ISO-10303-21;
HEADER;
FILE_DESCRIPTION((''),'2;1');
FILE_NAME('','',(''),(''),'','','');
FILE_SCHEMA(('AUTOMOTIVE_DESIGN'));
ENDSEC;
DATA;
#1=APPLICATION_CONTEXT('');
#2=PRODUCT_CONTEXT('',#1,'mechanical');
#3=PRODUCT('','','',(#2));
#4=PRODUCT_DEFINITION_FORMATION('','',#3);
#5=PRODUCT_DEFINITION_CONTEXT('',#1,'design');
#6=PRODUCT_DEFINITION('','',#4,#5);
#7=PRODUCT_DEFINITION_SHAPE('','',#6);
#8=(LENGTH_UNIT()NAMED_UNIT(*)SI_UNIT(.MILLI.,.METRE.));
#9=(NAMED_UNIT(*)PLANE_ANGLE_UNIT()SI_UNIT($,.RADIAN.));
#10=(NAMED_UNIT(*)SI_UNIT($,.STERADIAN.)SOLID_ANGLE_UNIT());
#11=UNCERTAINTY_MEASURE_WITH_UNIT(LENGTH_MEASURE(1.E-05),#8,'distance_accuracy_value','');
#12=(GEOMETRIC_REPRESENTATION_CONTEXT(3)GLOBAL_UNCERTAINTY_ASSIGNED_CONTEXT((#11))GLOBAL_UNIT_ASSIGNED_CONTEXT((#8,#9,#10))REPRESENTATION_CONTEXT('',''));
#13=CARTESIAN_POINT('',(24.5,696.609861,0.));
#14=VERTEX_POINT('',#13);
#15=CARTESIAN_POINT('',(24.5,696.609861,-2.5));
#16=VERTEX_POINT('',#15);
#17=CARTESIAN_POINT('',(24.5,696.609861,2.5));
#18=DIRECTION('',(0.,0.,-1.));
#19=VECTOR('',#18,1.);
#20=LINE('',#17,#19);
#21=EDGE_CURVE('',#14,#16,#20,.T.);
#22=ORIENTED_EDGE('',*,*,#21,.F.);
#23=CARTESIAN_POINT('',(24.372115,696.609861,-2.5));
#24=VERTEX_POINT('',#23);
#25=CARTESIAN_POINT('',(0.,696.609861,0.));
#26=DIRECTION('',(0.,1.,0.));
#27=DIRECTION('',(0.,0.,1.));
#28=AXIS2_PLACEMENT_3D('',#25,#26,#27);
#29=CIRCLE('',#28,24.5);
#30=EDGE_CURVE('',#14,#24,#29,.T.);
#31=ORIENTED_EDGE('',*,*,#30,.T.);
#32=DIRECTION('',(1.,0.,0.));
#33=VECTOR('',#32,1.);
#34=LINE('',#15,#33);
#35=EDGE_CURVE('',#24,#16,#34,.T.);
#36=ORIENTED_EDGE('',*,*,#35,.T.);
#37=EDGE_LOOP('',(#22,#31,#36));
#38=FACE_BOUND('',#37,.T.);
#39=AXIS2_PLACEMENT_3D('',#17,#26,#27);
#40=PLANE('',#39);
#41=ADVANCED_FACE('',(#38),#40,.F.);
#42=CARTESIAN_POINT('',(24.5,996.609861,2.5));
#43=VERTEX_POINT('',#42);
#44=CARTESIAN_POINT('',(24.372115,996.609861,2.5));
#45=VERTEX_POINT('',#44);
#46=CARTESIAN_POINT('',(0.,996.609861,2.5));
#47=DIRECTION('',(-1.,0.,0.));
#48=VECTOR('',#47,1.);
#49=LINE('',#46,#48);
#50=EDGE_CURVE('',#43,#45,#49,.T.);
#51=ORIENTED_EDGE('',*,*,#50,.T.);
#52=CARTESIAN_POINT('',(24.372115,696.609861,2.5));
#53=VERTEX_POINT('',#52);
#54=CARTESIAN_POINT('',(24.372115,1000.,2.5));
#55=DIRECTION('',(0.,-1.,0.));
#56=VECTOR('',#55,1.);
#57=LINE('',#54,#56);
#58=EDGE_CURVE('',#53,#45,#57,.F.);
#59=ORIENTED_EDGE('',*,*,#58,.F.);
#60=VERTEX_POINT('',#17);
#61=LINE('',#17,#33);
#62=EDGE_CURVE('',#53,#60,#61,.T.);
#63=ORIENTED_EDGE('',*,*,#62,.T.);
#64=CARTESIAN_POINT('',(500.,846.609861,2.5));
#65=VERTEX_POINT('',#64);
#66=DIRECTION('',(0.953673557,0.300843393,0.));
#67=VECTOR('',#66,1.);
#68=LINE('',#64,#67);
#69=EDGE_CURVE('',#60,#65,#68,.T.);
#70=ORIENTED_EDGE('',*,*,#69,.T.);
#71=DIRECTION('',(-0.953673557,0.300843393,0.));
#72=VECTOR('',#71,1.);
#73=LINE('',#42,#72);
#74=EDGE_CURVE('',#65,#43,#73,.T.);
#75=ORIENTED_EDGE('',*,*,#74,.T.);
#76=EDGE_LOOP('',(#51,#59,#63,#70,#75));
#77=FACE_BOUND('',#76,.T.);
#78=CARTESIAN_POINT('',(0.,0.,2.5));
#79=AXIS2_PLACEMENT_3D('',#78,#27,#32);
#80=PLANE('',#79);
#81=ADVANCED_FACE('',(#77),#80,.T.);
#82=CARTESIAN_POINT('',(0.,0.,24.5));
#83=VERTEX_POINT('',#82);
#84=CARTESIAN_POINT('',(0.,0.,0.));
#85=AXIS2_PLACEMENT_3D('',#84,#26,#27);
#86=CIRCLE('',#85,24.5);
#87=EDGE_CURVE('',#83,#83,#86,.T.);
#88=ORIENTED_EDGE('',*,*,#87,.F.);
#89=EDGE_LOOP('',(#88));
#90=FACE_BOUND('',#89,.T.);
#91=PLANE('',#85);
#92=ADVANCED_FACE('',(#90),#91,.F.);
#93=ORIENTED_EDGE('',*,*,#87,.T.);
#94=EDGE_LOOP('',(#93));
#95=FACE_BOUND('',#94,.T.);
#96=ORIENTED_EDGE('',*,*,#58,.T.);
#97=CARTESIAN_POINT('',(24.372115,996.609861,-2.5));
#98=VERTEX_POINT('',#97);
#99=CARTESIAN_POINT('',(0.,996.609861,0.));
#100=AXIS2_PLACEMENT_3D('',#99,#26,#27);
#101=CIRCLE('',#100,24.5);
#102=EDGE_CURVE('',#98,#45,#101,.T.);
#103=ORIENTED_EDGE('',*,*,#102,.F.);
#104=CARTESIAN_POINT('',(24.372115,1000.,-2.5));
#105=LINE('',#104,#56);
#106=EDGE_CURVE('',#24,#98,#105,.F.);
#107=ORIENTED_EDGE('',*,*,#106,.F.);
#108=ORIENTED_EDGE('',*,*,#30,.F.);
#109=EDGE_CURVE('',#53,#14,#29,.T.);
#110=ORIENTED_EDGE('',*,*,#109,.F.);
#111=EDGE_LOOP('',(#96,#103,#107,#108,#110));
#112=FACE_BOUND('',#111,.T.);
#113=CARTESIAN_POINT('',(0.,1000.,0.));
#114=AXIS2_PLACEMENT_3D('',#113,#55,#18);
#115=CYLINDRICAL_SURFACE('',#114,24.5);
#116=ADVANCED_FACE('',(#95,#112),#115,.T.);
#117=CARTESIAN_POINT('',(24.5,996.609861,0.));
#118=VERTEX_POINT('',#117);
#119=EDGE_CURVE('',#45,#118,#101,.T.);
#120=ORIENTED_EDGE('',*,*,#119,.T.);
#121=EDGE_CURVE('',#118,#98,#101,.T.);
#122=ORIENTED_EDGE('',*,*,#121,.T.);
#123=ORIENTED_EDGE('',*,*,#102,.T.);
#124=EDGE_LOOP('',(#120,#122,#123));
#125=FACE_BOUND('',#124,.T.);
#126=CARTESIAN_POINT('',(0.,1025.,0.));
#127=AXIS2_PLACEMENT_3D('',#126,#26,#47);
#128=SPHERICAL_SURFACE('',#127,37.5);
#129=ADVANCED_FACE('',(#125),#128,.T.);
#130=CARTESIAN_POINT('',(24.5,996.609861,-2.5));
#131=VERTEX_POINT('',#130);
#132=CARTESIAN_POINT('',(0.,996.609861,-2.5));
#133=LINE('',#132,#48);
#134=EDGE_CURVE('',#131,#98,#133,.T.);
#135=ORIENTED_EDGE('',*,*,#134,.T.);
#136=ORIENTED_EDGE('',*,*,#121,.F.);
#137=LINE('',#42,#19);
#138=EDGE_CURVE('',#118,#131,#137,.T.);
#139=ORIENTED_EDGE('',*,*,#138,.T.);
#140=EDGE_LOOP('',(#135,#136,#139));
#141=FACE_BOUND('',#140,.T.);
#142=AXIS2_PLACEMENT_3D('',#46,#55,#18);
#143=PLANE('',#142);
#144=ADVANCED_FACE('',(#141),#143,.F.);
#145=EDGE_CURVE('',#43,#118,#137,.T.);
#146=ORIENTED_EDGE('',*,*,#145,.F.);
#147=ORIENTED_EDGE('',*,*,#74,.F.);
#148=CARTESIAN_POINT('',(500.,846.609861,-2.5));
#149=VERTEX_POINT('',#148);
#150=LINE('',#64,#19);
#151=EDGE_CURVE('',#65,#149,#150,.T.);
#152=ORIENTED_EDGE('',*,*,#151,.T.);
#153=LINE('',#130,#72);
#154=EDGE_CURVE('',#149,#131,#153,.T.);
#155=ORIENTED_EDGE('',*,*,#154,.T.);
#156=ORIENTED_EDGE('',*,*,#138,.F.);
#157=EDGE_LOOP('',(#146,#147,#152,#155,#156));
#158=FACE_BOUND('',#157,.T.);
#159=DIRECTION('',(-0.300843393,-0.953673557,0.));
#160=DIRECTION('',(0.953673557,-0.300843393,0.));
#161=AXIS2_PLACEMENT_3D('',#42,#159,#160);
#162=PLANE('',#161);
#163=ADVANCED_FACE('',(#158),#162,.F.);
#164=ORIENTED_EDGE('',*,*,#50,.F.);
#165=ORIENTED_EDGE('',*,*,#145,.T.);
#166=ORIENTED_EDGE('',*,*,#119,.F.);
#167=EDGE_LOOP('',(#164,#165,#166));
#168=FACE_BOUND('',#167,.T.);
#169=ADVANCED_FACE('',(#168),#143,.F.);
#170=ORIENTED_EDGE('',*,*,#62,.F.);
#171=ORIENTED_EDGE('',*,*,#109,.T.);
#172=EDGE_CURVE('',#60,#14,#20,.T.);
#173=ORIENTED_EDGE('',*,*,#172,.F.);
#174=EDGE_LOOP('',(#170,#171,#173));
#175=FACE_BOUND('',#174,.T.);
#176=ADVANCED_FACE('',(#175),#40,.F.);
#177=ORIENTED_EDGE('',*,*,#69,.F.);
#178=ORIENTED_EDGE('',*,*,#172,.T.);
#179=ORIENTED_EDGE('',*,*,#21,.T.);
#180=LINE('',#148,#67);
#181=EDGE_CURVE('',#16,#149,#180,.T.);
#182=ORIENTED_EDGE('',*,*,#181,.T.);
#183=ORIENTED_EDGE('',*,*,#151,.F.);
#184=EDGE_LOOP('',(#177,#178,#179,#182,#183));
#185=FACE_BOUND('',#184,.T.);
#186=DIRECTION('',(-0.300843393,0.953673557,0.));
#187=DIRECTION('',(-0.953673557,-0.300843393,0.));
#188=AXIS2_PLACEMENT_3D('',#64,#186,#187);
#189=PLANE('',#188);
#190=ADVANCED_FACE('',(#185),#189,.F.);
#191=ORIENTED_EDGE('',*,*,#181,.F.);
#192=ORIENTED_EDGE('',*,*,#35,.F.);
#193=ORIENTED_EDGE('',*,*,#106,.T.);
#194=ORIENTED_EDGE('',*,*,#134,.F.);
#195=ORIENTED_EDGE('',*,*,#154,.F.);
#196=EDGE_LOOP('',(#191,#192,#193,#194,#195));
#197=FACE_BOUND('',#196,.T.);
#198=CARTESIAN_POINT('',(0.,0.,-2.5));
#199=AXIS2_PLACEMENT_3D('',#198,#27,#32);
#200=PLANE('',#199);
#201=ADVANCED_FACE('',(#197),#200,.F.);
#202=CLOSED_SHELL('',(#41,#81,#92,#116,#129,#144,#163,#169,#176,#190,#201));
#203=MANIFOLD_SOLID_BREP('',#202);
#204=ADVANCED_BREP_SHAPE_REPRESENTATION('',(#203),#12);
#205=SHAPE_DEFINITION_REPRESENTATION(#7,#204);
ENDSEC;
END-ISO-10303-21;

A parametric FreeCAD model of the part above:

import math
import FreeCAD as App
import Part
import Sketcher

V = App.Vector

doc = App.newDocument("Part")
body = doc.addObject("PartDesign::Body", "Body")

sketch1 = doc.addObject("Sketcher::SketchObject", "Sketch")
body.addObject(sketch1)
sketch1.AttachmentSupport = (doc.XZ_Plane, [""])
sketch1.MapMode = "FlatFace"
sketch1.addGeometry(Part.Circle(V(0, 0, 0), V(0, 0, 1), 24), False)
sketch1.addConstraint([
    Sketcher.Constraint("Coincident", 0, 3, -1, 1),
    Sketcher.Constraint("Diameter", 0, 49.0),
])
pad1 = doc.addObject("PartDesign::Pad", "Pad")
body.addObject(pad1)
pad1.Profile = sketch1
pad1.Length = 1000
pad1.Reversed = True

sketch2 = doc.addObject("Sketcher::SketchObject", "Sketch001")
body.addObject(sketch2)
sketch2.AttachmentSupport = (doc.XY_Plane, [""])
sketch2.MapMode = "FlatFace"
sketch2.addGeometry([
    Part.LineSegment(V(0, 1062, 0), V(0, 988, 0)),
    Part.ArcOfCircle(Part.Circle(V(0, 1025, 0), V(0, 0, 1), 38), math.radians(-90), math.radians(90)),
], False)
sketch2.addConstraint([
    Sketcher.Constraint("Coincident", 0, 1, 1, 2),
    Sketcher.Constraint("Coincident", 1, 1, 0, 2),
    Sketcher.Constraint("Vertical", 0),
    Sketcher.Constraint("PointOnObject", 1, 3, -2),
    Sketcher.Constraint("PointOnObject", 0, 1, -2),
    Sketcher.Constraint("Radius", 1, 37.5),
    Sketcher.Constraint("DistanceY", -1, 1, 1, 3, 1025.0),
])
revolution = doc.addObject("PartDesign::Revolution", "Revolution")
body.addObject(revolution)
revolution.Profile = sketch2
revolution.ReferenceAxis = (sketch2, ["V_Axis"])
revolution.Angle = 360

sketch3 = doc.addObject("Sketcher::SketchObject", "Sketch002")
body.addObject(sketch3)
sketch3.AttachmentSupport = (doc.XY_Plane, [""])
sketch3.MapMode = "FlatFace"
sketch3.addGeometry([
    Part.LineSegment(V(500, 847, 0), V(24, 997, 0)),
    Part.LineSegment(V(24, 997, 0), V(0, 997, 0)),
    Part.LineSegment(V(0, 997, 0), V(0, 697, 0)),
    Part.LineSegment(V(0, 697, 0), V(24, 697, 0)),
    Part.LineSegment(V(24, 697, 0), V(500, 847, 0)),
], False)
sketch3.addConstraint([
    Sketcher.Constraint("Coincident", 0, 2, 1, 1),
    Sketcher.Constraint("Coincident", 1, 2, 2, 1),
    Sketcher.Constraint("Coincident", 2, 2, 3, 1),
    Sketcher.Constraint("Coincident", 3, 2, 4, 1),
    Sketcher.Constraint("Coincident", 4, 2, 0, 1),
    Sketcher.Constraint("Horizontal", 1),
    Sketcher.Constraint("Vertical", 2),
    Sketcher.Constraint("Horizontal", 3),
    Sketcher.Constraint("PointOnObject", 1, 2, -2),
    Sketcher.Constraint("Vertical", 0, 2, 3, 2),
    Sketcher.Constraint("Equal", 0, 4),
    Sketcher.Constraint("DistanceY", 2, 2, 2, 1, 300.0),
    Sketcher.Constraint("DistanceX", 1, 2, 1, 1, 24.5),
    Sketcher.Constraint("DistanceX", -1, 1, 4, 2, 500.0),
    Sketcher.Constraint("DistanceY", -1, 1, 0, 2, 996.609861),
])
pad2 = doc.addObject("PartDesign::Pad", "Pad001")
body.addObject(pad2)
pad2.Profile = sketch3
pad2.Length = 5
pad2.Midplane = True

doc.recompute()
